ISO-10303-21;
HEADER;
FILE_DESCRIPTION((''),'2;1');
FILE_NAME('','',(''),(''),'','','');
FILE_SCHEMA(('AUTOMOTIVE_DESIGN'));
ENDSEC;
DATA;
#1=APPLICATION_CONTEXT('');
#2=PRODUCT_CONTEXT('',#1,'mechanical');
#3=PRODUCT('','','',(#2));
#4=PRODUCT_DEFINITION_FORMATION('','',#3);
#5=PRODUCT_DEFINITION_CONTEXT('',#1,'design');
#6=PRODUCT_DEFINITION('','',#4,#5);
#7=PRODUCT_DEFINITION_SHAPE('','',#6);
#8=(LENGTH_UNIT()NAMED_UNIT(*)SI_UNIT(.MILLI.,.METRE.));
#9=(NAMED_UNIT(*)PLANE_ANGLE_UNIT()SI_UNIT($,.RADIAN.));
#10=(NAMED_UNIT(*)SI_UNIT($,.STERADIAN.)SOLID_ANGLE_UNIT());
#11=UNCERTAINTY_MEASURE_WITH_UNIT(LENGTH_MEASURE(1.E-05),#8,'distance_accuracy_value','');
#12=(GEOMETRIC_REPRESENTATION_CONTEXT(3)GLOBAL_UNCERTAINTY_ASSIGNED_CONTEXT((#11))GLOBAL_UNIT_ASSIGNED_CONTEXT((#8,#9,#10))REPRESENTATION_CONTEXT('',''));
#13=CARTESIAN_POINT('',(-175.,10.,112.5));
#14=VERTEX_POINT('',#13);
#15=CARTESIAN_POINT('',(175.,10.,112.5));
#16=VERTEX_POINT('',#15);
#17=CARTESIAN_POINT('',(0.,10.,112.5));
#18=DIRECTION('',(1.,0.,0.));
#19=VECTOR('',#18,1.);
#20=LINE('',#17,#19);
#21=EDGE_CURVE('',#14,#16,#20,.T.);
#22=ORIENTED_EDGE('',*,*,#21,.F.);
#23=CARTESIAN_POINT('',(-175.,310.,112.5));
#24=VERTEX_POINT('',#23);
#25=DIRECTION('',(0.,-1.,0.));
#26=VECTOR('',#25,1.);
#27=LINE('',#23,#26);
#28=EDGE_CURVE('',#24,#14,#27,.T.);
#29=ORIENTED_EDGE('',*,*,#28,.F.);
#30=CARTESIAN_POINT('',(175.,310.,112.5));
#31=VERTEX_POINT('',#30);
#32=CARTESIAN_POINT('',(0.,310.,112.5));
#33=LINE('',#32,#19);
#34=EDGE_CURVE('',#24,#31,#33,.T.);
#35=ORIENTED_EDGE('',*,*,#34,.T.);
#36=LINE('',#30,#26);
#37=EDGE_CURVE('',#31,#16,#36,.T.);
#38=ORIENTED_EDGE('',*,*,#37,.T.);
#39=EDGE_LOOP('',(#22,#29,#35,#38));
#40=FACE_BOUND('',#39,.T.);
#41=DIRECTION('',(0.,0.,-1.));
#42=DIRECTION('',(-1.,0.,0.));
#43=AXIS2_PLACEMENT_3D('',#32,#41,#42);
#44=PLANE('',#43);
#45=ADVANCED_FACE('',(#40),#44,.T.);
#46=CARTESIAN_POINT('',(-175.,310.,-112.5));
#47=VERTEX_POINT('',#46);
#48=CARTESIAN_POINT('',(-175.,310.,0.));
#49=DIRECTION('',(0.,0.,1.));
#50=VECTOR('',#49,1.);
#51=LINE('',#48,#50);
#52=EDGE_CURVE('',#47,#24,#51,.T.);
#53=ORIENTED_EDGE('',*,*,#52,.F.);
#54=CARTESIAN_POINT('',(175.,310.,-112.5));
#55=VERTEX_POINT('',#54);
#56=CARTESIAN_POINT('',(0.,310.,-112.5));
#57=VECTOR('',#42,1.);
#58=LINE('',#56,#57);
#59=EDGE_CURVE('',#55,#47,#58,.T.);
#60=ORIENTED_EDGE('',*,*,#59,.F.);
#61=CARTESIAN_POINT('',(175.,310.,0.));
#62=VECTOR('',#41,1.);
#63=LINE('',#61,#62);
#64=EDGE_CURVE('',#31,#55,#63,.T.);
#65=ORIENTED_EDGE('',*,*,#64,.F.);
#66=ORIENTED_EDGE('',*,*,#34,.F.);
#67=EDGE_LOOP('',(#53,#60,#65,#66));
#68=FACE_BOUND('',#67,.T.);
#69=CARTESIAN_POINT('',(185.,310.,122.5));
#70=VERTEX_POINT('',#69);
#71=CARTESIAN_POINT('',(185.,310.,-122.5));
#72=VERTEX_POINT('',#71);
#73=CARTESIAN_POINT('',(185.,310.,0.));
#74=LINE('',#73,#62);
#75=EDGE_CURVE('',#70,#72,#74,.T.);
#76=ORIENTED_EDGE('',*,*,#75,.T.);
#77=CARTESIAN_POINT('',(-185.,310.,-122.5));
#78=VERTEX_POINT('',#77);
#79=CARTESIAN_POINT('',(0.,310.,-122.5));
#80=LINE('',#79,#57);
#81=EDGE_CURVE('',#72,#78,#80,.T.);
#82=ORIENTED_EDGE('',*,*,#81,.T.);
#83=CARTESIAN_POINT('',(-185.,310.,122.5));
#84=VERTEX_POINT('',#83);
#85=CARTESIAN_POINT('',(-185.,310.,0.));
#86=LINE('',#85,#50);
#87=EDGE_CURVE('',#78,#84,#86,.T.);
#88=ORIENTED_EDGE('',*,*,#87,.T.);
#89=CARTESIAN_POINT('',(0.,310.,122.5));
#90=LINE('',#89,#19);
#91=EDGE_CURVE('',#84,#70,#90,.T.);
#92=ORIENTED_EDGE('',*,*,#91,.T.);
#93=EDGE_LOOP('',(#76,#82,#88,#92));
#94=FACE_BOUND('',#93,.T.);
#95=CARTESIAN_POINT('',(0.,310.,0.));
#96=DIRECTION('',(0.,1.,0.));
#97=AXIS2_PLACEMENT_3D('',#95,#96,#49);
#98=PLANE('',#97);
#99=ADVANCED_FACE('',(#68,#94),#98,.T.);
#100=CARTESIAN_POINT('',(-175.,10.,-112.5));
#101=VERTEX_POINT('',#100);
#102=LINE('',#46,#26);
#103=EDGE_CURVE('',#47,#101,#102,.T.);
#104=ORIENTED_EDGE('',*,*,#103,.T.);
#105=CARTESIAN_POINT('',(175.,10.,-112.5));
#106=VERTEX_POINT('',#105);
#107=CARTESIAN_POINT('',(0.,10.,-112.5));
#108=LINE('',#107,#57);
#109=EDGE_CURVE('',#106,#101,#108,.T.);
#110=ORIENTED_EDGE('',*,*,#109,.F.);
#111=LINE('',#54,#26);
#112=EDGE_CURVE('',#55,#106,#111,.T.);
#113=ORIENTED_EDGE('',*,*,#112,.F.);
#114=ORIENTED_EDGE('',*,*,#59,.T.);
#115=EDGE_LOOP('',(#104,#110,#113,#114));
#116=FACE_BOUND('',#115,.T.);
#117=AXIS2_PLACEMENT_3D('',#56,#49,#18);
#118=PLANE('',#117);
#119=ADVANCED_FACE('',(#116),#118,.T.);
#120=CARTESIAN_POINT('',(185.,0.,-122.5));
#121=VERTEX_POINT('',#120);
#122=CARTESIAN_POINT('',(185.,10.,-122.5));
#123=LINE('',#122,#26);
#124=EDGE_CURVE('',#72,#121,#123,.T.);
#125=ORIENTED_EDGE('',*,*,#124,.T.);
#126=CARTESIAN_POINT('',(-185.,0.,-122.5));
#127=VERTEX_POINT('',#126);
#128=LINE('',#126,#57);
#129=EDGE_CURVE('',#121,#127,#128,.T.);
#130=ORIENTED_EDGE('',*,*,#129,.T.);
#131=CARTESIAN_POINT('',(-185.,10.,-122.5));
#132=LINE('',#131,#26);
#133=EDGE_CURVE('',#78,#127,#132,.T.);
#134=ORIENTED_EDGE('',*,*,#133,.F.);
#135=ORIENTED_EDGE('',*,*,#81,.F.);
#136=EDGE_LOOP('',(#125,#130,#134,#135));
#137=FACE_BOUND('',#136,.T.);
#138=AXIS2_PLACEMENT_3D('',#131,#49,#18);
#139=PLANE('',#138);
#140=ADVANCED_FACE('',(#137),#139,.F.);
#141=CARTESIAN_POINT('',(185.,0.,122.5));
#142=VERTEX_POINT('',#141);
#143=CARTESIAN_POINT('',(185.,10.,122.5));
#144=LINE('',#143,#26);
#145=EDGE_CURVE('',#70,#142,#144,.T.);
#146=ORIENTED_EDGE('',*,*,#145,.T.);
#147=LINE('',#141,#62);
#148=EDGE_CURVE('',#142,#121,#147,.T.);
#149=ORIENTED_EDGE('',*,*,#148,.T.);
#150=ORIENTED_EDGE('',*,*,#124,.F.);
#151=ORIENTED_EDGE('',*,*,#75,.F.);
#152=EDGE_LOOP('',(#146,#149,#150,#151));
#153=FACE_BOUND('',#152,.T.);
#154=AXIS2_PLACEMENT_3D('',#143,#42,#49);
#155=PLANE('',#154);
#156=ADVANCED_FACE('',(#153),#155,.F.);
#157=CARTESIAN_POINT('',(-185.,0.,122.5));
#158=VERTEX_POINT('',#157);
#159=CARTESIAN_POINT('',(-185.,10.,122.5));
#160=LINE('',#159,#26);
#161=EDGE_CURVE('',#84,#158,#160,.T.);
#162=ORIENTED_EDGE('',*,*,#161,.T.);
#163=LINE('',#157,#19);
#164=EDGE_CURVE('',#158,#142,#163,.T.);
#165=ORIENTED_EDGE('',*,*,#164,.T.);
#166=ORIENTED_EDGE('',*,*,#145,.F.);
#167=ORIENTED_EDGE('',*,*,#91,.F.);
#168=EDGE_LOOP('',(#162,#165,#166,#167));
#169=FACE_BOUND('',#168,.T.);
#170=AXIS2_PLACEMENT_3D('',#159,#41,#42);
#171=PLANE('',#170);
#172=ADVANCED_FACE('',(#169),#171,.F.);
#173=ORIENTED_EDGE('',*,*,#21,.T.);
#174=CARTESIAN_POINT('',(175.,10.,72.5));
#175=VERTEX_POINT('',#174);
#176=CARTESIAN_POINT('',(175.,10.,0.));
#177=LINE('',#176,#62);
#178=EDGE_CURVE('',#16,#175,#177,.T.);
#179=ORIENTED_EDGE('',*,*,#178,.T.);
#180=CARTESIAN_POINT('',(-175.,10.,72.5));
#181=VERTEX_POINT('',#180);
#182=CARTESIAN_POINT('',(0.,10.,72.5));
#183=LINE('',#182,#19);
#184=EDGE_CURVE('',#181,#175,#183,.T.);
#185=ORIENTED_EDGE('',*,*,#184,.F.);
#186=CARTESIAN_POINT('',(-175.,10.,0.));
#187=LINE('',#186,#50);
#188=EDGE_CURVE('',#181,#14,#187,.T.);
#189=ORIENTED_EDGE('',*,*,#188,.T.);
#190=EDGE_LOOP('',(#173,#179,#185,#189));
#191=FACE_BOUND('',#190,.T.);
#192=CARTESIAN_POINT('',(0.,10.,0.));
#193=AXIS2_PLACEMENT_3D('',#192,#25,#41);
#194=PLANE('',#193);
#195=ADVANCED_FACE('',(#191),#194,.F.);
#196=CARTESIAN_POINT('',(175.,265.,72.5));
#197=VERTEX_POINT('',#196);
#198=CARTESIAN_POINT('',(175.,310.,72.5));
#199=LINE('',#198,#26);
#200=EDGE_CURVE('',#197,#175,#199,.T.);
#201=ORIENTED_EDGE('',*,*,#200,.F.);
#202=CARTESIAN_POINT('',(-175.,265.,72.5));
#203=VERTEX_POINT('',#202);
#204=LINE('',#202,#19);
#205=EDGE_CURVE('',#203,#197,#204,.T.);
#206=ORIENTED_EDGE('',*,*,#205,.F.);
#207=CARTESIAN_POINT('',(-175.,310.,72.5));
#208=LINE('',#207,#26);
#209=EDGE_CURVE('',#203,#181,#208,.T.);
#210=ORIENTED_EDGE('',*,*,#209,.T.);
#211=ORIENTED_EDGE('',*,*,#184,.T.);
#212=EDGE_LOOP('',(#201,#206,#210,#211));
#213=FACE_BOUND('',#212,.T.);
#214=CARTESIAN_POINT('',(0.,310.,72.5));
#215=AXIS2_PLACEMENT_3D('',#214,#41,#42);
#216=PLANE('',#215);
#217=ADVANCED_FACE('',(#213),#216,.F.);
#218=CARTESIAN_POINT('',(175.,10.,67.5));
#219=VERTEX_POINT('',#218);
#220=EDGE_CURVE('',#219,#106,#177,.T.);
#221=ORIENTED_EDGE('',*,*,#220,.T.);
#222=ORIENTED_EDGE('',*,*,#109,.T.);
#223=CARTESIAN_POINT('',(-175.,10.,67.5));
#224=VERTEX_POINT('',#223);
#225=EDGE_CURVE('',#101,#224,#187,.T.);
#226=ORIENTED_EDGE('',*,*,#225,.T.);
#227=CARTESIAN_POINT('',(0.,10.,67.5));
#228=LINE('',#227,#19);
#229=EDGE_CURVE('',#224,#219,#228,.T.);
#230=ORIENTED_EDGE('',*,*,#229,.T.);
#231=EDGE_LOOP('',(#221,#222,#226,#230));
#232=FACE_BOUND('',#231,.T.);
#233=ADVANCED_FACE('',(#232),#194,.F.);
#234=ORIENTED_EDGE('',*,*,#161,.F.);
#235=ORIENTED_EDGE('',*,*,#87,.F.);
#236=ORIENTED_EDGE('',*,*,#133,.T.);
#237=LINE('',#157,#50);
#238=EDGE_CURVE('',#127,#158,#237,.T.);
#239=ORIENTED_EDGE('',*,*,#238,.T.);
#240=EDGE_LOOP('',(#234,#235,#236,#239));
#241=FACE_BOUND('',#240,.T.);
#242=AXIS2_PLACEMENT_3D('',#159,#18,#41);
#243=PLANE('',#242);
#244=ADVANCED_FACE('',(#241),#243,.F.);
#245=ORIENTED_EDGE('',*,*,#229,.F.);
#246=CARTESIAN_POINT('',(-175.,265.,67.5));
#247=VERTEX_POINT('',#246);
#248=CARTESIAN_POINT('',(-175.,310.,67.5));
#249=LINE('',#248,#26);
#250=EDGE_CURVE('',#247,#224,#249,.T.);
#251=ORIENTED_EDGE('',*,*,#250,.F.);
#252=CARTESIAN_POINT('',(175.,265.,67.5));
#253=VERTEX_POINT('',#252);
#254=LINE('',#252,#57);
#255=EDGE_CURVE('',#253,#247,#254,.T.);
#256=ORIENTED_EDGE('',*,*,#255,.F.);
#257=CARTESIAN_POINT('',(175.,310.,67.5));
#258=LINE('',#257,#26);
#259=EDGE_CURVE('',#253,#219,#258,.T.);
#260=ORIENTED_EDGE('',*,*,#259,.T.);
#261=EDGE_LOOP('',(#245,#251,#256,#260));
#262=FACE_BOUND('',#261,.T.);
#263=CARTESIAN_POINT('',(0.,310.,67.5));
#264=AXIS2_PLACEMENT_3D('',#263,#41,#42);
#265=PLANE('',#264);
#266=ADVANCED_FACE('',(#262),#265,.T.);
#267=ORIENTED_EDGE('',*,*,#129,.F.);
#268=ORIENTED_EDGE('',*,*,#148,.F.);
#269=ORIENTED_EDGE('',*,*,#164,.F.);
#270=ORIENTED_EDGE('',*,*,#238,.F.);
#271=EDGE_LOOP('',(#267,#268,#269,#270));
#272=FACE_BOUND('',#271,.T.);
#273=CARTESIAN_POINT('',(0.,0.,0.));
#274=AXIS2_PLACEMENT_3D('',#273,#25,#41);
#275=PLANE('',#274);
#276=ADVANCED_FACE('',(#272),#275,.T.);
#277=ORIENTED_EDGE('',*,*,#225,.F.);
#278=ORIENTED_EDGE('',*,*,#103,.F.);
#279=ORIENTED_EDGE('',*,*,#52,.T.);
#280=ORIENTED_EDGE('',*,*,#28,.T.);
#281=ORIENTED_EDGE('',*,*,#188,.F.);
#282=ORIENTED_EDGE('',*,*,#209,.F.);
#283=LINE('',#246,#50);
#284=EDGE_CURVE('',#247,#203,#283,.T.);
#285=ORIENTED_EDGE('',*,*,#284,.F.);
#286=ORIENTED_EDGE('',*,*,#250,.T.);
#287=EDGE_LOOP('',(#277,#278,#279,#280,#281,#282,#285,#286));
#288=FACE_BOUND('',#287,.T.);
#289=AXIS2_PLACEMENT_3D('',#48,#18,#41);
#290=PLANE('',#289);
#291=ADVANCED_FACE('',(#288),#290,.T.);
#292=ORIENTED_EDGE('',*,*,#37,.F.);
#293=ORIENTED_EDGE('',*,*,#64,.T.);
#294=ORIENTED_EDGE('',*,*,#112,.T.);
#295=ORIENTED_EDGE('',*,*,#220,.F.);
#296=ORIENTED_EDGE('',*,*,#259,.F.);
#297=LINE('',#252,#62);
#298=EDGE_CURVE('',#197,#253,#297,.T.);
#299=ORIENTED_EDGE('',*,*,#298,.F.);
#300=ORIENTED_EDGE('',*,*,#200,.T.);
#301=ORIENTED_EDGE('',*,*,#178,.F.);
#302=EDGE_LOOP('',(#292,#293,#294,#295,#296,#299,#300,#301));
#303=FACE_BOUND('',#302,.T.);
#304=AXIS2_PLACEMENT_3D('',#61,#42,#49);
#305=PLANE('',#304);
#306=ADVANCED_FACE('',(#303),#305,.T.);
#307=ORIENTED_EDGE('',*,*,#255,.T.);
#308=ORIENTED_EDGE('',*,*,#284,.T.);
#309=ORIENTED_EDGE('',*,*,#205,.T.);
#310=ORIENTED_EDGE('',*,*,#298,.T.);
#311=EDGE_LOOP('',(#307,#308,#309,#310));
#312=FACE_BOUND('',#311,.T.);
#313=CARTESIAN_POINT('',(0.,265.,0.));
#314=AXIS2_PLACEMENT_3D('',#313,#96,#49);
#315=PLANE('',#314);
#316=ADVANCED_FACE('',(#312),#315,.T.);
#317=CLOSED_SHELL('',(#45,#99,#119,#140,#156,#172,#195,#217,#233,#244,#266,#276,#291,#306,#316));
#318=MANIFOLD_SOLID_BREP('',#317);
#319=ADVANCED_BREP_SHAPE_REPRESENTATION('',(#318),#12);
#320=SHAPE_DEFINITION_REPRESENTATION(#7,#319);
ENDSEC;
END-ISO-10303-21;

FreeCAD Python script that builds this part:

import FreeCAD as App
import Part
import Sketcher


def add_polygon(sketch, points):
    """Adds a closed chain of lines whose ends are joined by coincident constraints."""
    first, n = sketch.GeometryCount, len(points)
    for a, b in zip(points, points[1:] + points[:1]):
        sketch.addGeometry(Part.LineSegment(App.Vector(*a, 0), App.Vector(*b, 0)), False)
    for i in range(n):
        sketch.addConstraint(Sketcher.Constraint("Coincident", first + i, 2, first + (i + 1) % n, 1))

doc = App.newDocument("Part")
body = doc.addObject("PartDesign::Body", "Body")

# Sketch on XZ plane
sketch1 = body.newObject("Sketcher::SketchObject", "Sketch")
sketch1.AttachmentSupport = (doc.getObject("XZ_Plane"), [""])
sketch1.MapMode = "FlatFace"
add_polygon(sketch1, [(-185, -122), (-185, 122), (185, 122), (185, -122)])  # lines 0-3
sketch1.addConstraint(Sketcher.Constraint("Vertical", 0))
sketch1.addConstraint(Sketcher.Constraint("Horizontal", 1))
sketch1.addConstraint(Sketcher.Constraint("Vertical", 2))
sketch1.addConstraint(Sketcher.Constraint("Horizontal", 3))
sketch1.addConstraint(Sketcher.Constraint("Symmetric", 0, 2, 2, 2, -1, 1))
sketch1.addConstraint(Sketcher.Constraint("DistanceX", 1, 1, 1, 2, 370.0))
sketch1.addConstraint(Sketcher.Constraint("DistanceY", 0, 1, 0, 2, 245.0))
pad1 = body.newObject("PartDesign::Pad", "Pad")
pad1.Profile = sketch1
pad1.Length = 10
pad1.Reversed = True

# Sketch on XZ plane
sketch2 = body.newObject("Sketcher::SketchObject", "Sketch001")
sketch2.AttachmentSupport = (doc.getObject("XZ_Plane"), [""])
sketch2.MapMode = "FlatFace"
sketch2.AttachmentOffset = App.Placement(App.Vector(0, 0, -10), App.Rotation())
add_polygon(sketch2, [(-185, -122), (-185, 122), (185, 122), (185, -122)])  # lines 0-3
add_polygon(sketch2, [(175, 112), (-175, 112), (-175, 72), (175, 72)])  # lines 4-7
add_polygon(sketch2, [(175, -112), (175, 68), (-175, 68), (-175, -112)])  # lines 8-11
sketch2.addConstraint(Sketcher.Constraint("Vertical", 0))
sketch2.addConstraint(Sketcher.Constraint("Horizontal", 1))
sketch2.addConstraint(Sketcher.Constraint("Vertical", 2))
sketch2.addConstraint(Sketcher.Constraint("Horizontal", 3))
sketch2.addConstraint(Sketcher.Constraint("Horizontal", 4))
sketch2.addConstraint(Sketcher.Constraint("Vertical", 5))
sketch2.addConstraint(Sketcher.Constraint("Horizontal", 6))
sketch2.addConstraint(Sketcher.Constraint("Vertical", 7))
sketch2.addConstraint(Sketcher.Constraint("Vertical", 8))
sketch2.addConstraint(Sketcher.Constraint("Horizontal", 9))
sketch2.addConstraint(Sketcher.Constraint("Vertical", 10))
sketch2.addConstraint(Sketcher.Constraint("Horizontal", 11))
sketch2.addConstraint(Sketcher.Constraint("Symmetric", 0, 2, 2, 2, -1, 1))
sketch2.addConstraint(Sketcher.Constraint("Symmetric", 7, 2, 10, 2, -1, 1))
sketch2.addConstraint(Sketcher.Constraint("Vertical", 7, 2, 8, 2))
sketch2.addConstraint(Sketcher.Constraint("Vertical", 5, 2, 9, 2))
sketch2.addConstraint(Sketcher.Constraint("DistanceX", 1, 1, 1, 2, 370.0))
sketch2.addConstraint(Sketcher.Constraint("DistanceX", 4, 2, 4, 1, 350.0))
sketch2.addConstraint(Sketcher.Constraint("DistanceY", 0, 1, 0, 2, 245.0))
sketch2.addConstraint(Sketcher.Constraint("DistanceY", 5, 2, 5, 1, 40.0))
sketch2.addConstraint(Sketcher.Constraint("DistanceY", 8, 1, 8, 2, 180.0))
sketch2.addConstraint(Sketcher.Constraint("DistanceY", 4, 2, 0, 2, 10.0))
pad2 = body.newObject("PartDesign::Pad", "Pad001")
pad2.Profile = sketch2
pad2.Length = 300
pad2.Reversed = True

# Sketch on XZ plane
sketch3 = body.newObject("Sketcher::SketchObject", "Sketch002")
sketch3.AttachmentSupport = (doc.getObject("XZ_Plane"), [""])
sketch3.MapMode = "FlatFace"
sketch3.AttachmentOffset = App.Placement(App.Vector(0, 0, -310), App.Rotation())
add_polygon(sketch3, [(-175, 68), (-175, 72), (175, 72), (175, 68)])  # lines 0-3
sketch3.addConstraint(Sketcher.Constraint("Vertical", 0))
sketch3.addConstraint(Sketcher.Constraint("Horizontal", 1))
sketch3.addConstraint(Sketcher.Constraint("Vertical", 2))
sketch3.addConstraint(Sketcher.Constraint("Horizontal", 3))
sketch3.addConstraint(Sketcher.Constraint("DistanceX", 1, 1, 1, 2, 350.0))
sketch3.addConstraint(Sketcher.Constraint("DistanceY", 0, 1, 0, 2, 5.0))
sketch3.addConstraint(Sketcher.Constraint("DistanceX", 0, 2, -1, 1, 175.0))
sketch3.addConstraint(Sketcher.Constraint("DistanceY", -1, 1, 0, 2, 72.5))
pocket1 = body.newObject("PartDesign::Pocket", "Pocket")
pocket1.Profile = sketch3
pocket1.Length = 45
pocket1.Reversed = True

doc.recompute()
